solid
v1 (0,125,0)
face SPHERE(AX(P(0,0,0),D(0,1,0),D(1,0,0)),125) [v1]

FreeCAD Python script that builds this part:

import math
import FreeCAD as App
import Part
import Sketcher
from FreeCAD import Vector

doc = App.newDocument("Part")
body = doc.addObject("PartDesign::Body", "Body")

# Sketch on XY plane
sketch1 = body.newObject("Sketcher::SketchObject", "Sketch")
sketch1.AttachmentSupport = (doc.getObject("XY_Plane"), [""])
sketch1.MapMode = "FlatFace"
sketch1.addGeometry([
    Part.ArcOfCircle(Part.Circle(Vector(0, 0, 0), Vector(0, 0, 1), 125), math.radians(-90), math.radians(90)),
    Part.LineSegment(Vector(0, 125, 0), Vector(0, -125, 0)),
], False)
sketch1.addConstraint([
    Sketcher.Constraint("Coincident", 0, 1, 1, 2),
    Sketcher.Constraint("Coincident", 1, 1, 0, 2),
    Sketcher.Constraint("Vertical", 1),
    Sketcher.Constraint("Coincident", 0, 3, -1, 1),
    Sketcher.Constraint("PointOnObject", 0, 1, -2),
    Sketcher.Constraint("Radius", 0, 125.0),
])
revolution = body.newObject("PartDesign::Revolution", "Revolution")
revolution.Profile = sketch1
revolution.ReferenceAxis = (sketch1, ["V_Axis"])
revolution.Angle = 360

doc.recompute()
